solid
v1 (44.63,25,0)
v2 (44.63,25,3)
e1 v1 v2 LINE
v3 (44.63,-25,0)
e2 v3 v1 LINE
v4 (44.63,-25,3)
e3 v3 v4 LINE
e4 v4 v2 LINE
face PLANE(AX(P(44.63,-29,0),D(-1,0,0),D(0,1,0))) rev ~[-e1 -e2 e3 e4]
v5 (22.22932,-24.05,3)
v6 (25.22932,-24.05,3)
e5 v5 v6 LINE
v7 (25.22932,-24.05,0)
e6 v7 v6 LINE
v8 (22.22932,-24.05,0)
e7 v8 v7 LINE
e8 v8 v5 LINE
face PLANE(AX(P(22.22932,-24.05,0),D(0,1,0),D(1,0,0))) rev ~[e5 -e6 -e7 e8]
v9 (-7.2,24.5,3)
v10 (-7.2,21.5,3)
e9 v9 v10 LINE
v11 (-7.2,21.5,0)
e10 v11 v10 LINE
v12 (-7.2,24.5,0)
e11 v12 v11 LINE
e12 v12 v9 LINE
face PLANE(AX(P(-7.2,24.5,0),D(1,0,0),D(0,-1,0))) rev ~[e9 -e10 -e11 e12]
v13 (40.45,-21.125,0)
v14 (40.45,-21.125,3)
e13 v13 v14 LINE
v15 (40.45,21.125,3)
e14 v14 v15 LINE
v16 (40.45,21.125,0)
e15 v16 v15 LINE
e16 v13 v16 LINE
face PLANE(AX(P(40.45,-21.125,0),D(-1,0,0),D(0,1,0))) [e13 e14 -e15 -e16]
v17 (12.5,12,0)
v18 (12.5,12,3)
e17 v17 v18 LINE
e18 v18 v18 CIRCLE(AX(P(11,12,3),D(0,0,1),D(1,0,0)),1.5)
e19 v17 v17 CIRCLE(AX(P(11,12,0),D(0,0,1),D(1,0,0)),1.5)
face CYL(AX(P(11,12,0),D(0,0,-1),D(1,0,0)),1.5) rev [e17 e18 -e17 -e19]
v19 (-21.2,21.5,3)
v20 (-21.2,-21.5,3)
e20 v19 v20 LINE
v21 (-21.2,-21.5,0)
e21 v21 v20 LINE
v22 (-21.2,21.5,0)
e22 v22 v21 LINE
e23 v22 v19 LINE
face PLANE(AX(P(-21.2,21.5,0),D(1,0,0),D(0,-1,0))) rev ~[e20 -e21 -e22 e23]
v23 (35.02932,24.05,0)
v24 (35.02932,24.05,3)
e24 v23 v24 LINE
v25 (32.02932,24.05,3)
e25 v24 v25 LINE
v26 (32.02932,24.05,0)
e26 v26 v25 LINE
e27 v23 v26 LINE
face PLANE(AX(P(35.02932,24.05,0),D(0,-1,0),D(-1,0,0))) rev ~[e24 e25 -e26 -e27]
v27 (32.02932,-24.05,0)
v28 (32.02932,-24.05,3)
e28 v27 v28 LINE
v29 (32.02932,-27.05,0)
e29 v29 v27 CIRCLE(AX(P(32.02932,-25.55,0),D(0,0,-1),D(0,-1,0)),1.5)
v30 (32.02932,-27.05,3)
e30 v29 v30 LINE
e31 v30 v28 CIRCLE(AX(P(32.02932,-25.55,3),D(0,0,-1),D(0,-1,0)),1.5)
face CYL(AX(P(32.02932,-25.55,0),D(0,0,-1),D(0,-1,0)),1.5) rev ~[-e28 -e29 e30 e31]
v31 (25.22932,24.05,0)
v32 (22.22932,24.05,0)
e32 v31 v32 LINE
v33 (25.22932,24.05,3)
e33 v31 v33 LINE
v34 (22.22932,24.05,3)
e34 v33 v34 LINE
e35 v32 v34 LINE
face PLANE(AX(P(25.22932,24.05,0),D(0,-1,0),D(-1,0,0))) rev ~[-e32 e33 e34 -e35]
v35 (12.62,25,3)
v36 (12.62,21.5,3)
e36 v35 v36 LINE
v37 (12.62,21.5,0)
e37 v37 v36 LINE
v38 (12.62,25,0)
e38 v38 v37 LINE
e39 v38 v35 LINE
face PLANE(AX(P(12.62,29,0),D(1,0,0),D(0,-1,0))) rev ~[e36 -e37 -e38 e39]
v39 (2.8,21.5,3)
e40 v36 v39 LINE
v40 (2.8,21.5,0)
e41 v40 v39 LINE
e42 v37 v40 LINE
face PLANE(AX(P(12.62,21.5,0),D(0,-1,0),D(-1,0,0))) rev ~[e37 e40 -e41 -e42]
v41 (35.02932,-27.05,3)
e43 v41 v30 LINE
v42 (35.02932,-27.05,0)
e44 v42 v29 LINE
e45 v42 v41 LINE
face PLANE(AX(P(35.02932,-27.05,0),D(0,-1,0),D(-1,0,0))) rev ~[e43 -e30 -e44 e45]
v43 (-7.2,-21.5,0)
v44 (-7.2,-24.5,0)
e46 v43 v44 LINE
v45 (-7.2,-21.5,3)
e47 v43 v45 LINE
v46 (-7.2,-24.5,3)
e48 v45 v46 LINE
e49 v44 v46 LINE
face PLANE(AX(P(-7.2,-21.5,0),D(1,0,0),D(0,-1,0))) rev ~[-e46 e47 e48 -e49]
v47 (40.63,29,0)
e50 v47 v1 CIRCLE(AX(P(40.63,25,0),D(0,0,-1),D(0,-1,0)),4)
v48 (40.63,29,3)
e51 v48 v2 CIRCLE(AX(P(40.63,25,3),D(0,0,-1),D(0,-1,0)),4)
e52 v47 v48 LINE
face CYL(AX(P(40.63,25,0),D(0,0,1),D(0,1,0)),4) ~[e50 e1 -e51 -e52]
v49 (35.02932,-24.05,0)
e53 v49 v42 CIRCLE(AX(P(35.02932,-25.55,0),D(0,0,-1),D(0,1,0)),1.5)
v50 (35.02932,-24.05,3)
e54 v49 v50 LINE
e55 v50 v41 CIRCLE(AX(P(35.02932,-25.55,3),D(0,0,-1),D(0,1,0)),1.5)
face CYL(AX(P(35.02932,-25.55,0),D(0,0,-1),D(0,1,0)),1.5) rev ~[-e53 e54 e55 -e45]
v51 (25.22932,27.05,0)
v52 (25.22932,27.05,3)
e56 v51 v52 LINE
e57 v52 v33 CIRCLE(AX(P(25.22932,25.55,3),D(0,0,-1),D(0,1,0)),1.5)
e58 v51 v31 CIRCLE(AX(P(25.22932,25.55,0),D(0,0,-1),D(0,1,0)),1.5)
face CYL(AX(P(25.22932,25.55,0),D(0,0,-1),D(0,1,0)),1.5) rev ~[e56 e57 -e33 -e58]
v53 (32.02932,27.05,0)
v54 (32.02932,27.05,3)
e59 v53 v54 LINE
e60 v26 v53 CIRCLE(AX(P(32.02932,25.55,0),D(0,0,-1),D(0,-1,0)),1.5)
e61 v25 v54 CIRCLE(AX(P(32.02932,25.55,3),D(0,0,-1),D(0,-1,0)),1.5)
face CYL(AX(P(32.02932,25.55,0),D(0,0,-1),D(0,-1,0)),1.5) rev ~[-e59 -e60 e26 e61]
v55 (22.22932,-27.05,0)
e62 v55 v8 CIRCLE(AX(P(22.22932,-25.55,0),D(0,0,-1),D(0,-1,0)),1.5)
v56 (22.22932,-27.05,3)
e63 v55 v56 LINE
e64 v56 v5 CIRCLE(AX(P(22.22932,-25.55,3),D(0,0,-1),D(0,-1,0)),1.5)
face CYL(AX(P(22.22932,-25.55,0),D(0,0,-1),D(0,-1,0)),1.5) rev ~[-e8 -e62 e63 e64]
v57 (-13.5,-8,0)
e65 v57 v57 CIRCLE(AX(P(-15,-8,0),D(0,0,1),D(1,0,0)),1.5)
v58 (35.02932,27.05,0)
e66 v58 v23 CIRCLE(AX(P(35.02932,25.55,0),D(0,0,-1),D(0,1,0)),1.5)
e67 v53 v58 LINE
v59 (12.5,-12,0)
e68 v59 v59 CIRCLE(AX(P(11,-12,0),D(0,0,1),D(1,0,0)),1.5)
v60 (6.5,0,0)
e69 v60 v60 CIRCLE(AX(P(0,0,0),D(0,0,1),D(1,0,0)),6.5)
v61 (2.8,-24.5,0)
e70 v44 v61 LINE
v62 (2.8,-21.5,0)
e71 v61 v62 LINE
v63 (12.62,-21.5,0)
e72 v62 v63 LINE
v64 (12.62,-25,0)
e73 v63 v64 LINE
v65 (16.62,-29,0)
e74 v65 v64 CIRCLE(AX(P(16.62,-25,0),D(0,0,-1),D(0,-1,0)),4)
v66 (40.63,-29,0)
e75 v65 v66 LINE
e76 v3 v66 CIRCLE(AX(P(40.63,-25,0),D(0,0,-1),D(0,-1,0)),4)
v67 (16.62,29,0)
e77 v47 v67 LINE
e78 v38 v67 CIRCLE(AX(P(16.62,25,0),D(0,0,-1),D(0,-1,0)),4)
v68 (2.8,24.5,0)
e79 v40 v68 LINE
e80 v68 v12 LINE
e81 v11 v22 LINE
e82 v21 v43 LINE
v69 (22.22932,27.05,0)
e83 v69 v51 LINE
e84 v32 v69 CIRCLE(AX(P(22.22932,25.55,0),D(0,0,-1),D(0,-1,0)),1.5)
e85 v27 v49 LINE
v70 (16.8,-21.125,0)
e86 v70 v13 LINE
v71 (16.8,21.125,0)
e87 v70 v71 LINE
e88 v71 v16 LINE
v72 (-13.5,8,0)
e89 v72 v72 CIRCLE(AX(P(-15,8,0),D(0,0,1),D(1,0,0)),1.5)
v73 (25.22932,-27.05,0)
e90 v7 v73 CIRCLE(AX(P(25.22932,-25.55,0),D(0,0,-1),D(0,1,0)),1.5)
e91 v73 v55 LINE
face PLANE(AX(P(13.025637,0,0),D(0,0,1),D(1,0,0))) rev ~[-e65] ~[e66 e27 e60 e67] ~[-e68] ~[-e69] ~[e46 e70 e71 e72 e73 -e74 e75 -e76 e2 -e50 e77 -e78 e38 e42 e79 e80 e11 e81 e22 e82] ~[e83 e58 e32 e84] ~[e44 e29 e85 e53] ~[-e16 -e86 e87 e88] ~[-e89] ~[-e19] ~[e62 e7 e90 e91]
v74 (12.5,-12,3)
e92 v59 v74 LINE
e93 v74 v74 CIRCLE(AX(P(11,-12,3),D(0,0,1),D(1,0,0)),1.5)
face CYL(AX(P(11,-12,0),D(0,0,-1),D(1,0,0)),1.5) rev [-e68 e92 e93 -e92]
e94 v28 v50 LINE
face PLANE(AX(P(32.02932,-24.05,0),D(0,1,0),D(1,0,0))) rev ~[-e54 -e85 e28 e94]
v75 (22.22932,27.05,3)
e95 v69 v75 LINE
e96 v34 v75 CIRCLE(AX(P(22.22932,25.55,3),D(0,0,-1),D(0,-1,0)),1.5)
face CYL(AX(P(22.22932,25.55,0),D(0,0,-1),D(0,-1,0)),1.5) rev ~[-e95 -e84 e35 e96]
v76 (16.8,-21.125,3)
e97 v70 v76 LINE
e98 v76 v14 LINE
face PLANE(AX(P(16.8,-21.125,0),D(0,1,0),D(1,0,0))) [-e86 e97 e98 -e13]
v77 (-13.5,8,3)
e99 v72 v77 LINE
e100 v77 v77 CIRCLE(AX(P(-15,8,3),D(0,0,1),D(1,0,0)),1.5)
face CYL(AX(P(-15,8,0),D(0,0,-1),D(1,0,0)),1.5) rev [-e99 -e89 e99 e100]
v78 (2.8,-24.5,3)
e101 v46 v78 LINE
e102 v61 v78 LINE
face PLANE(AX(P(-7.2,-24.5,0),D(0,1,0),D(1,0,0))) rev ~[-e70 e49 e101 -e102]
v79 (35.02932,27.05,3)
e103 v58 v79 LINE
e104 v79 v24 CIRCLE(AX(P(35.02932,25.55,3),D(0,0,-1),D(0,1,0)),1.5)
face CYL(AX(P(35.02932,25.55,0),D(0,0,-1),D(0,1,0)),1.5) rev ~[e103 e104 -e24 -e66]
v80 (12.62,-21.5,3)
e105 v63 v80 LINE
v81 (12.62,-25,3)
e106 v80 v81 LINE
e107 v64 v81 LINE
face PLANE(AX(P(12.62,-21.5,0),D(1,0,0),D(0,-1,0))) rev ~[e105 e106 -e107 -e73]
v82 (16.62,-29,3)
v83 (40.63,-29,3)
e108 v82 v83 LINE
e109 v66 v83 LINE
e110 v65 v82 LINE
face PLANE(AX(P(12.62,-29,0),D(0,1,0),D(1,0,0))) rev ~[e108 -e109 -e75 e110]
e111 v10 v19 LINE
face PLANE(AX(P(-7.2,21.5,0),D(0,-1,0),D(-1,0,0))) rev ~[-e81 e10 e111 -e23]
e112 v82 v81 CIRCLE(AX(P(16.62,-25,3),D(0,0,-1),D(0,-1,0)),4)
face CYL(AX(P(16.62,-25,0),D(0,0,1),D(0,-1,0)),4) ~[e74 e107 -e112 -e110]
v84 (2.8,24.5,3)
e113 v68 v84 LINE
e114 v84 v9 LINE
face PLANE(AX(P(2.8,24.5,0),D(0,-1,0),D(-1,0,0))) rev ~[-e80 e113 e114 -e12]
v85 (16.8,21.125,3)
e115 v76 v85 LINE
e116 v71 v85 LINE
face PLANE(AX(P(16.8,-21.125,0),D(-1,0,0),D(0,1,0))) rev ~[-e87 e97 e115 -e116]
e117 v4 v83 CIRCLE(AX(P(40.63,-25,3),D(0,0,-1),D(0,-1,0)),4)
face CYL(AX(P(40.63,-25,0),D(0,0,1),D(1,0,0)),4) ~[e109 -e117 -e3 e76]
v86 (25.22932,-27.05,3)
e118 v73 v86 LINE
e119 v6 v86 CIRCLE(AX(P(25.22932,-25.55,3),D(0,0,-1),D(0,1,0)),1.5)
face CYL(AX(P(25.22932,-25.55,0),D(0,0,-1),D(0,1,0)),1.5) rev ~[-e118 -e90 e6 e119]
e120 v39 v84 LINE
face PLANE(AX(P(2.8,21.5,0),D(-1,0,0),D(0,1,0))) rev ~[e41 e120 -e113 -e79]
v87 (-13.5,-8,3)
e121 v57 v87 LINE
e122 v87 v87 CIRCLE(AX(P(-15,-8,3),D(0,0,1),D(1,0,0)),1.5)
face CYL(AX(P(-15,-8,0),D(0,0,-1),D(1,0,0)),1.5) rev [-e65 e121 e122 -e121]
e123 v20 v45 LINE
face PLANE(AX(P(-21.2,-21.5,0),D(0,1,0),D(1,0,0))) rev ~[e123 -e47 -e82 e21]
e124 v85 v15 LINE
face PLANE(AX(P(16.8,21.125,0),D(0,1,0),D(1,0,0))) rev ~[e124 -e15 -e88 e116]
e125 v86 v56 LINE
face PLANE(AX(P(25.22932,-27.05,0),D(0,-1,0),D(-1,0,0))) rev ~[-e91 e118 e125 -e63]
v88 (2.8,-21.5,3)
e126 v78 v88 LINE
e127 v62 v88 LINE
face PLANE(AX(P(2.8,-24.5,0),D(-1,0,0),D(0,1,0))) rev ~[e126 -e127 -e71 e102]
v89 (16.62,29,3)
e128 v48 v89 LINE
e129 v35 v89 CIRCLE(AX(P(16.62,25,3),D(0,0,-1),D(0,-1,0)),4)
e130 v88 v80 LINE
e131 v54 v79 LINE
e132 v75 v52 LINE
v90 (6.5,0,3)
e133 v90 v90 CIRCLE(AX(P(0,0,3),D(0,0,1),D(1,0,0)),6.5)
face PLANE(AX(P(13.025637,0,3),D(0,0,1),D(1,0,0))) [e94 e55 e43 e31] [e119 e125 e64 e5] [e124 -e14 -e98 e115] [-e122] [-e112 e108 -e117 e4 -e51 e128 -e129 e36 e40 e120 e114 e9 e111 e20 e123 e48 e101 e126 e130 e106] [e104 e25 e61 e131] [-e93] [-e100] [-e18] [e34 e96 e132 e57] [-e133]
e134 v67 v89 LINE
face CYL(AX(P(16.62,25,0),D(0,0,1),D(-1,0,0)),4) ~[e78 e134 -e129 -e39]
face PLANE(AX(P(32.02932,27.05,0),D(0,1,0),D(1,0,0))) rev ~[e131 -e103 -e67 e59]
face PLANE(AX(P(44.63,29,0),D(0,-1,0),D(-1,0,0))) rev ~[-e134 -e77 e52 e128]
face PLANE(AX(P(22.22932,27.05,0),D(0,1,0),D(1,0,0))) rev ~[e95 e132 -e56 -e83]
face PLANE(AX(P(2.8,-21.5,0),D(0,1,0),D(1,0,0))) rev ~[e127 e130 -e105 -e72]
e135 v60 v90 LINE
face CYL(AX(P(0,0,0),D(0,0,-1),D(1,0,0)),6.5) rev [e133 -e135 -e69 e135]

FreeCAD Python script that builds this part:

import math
import FreeCAD as App
import Part
import Sketcher
Q = App.Units.Quantity


def edges_at(feature, points):
    """Names of the edges that pass closest to the given points."""
    edges = feature.Shape.Edges
    near = lambda p: min(range(len(edges)), key=lambda i: edges[i].distToShape(Part.Vertex(*p))[0])
    return sorted({f"Edge{near(p) + 1}" for p in points})

doc = App.newDocument("Part")
body = doc.addObject("PartDesign::Body", "Body")

# Sketch on XY plane
sketch1 = body.newObject("Sketcher::SketchObject", "Sketch")
sketch1.AttachmentSupport = (doc.getObject("XY_Plane"), [""])
sketch1.MapMode = "FlatFace"
sketch1.addGeometry([
    Part.LineSegment(App.Vector(12.6, 29, 0), App.Vector(12.6, 21.5, 0)),  # 0
    Part.LineSegment(App.Vector(12.6, 21.5, 0), App.Vector(2.8, 21.5, 0)),  # 1
    Part.LineSegment(App.Vector(2.8, 21.5, 0), App.Vector(2.8, 24.5, 0)),  # 2
    Part.LineSegment(App.Vector(2.8, 24.5, 0), App.Vector(-7.2, 24.5, 0)),  # 3
    Part.LineSegment(App.Vector(-7.2, 24.5, 0), App.Vector(-7.2, 21.5, 0)),  # 4
    Part.LineSegment(App.Vector(-7.2, 21.5, 0), App.Vector(-21.2, 21.5, 0)),  # 5
    Part.LineSegment(App.Vector(-21.2, 21.5, 0), App.Vector(-21.2, -21.5, 0)),  # 6
    Part.LineSegment(App.Vector(-21.2, -21.5, 0), App.Vector(-7.2, -21.5, 0)),  # 7
    Part.LineSegment(App.Vector(-7.2, -21.5, 0), App.Vector(-7.2, -24.5, 0)),  # 8
    Part.LineSegment(App.Vector(-7.2, -24.5, 0), App.Vector(2.8, -24.5, 0)),  # 9
    Part.LineSegment(App.Vector(2.8, -24.5, 0), App.Vector(2.8, -21.5, 0)),  # 10
    Part.LineSegment(App.Vector(2.8, -21.5, 0), App.Vector(12.6, -21.5, 0)),  # 11
    Part.LineSegment(App.Vector(12.6, -21.5, 0), App.Vector(12.6, -29, 0)),  # 12
    Part.LineSegment(App.Vector(12.6, -29, 0), App.Vector(44.6, -29, 0)),  # 13
    Part.LineSegment(App.Vector(44.6, -29, 0), App.Vector(44.6, 29, 0)),  # 14
    Part.LineSegment(App.Vector(44.6, 29, 0), App.Vector(12.6, 29, 0)),  # 15
    Part.Circle(App.Vector(-15, -8, 0), App.Vector(0, 0, 1), 1.5),  # 16
    Part.Circle(App.Vector(11, -12, 0), App.Vector(0, 0, 1), 1.5),  # 17
    Part.Circle(App.Vector(0, 0, 0), App.Vector(0, 0, 1), 6.5),  # 18
    Part.ArcOfCircle(Part.Circle(App.Vector(22.2, -25.6, 0), App.Vector(0, 0, 1), 1.5), math.radians(90), math.radians(270)),  # 19
    Part.LineSegment(App.Vector(22.2, -24.1, 0), App.Vector(25.2, -24.1, 0)),  # 20
    Part.ArcOfCircle(Part.Circle(App.Vector(25.2, -25.6, 0), App.Vector(0, 0, 1), 1.5), math.radians(-90), math.radians(90)),  # 21
    Part.LineSegment(App.Vector(25.2, -27.1, 0), App.Vector(22.2, -27.1, 0)),  # 22
    Part.ArcOfCircle(Part.Circle(App.Vector(32, -25.6, 0), App.Vector(0, 0, 1), 1.5), math.radians(90), math.radians(270)),  # 23
    Part.LineSegment(App.Vector(32, -24.1, 0), App.Vector(35, -24.1, 0)),  # 24
    Part.ArcOfCircle(Part.Circle(App.Vector(35, -25.6, 0), App.Vector(0, 0, 1), 1.5), math.radians(-90), math.radians(90)),  # 25
    Part.LineSegment(App.Vector(35, -27.1, 0), App.Vector(32, -27.1, 0)),  # 26
    Part.LineSegment(App.Vector(40.5, -21.1, 0), App.Vector(16.8, -21.1, 0)),  # 27
    Part.LineSegment(App.Vector(16.8, -21.1, 0), App.Vector(16.8, 21.1, 0)),  # 28
    Part.LineSegment(App.Vector(16.8, 21.1, 0), App.Vector(40.5, 21.1, 0)),  # 29
    Part.LineSegment(App.Vector(40.5, 21.1, 0), App.Vector(40.5, -21.1, 0)),  # 30
    Part.Circle(App.Vector(-15, 8, 0), App.Vector(0, 0, 1), 1.5),  # 31
    Part.Circle(App.Vector(11, 12, 0), App.Vector(0, 0, 1), 1.5),  # 32
    Part.ArcOfCircle(Part.Circle(App.Vector(22.2, 25.6, 0), App.Vector(0, 0, 1), 1.5), math.radians(90), math.radians(270)),  # 33
    Part.LineSegment(App.Vector(22.2, 27.1, 0), App.Vector(25.2, 27.1, 0)),  # 34
    Part.ArcOfCircle(Part.Circle(App.Vector(25.2, 25.6, 0), App.Vector(0, 0, 1), 1.5), math.radians(-90), math.radians(90)),  # 35
    Part.LineSegment(App.Vector(25.2, 24.1, 0), App.Vector(22.2, 24.1, 0)),  # 36
    Part.ArcOfCircle(Part.Circle(App.Vector(32, 25.6, 0), App.Vector(0, 0, 1), 1.5), math.radians(90), math.radians(270)),  # 37
    Part.LineSegment(App.Vector(32, 27.1, 0), App.Vector(35, 27.1, 0)),  # 38
    Part.ArcOfCircle(Part.Circle(App.Vector(35, 25.6, 0), App.Vector(0, 0, 1), 1.5), math.radians(-90), math.radians(90)),  # 39
    Part.LineSegment(App.Vector(35, 24.1, 0), App.Vector(32, 24.1, 0)),  # 40
], False)
sketch1.addConstraint([
    Sketcher.Constraint("Coincident", 0, 2, 1, 1),
    Sketcher.Constraint("Coincident", 1, 2, 2, 1),
    Sketcher.Constraint("Coincident", 2, 2, 3, 1),
    Sketcher.Constraint("Coincident", 3, 2, 4, 1),
    Sketcher.Constraint("Coincident", 4, 2, 5, 1),
    Sketcher.Constraint("Coincident", 5, 2, 6, 1),
    Sketcher.Constraint("Coincident", 6, 2, 7, 1),
    Sketcher.Constraint("Coincident", 7, 2, 8, 1),
    Sketcher.Constraint("Coincident", 8, 2, 9, 1),
    Sketcher.Constraint("Coincident", 9, 2, 10, 1),
    Sketcher.Constraint("Coincident", 10, 2, 11, 1),
    Sketcher.Constraint("Coincident", 11, 2, 12, 1),
    Sketcher.Constraint("Coincident", 12, 2, 13, 1),
    Sketcher.Constraint("Coincident", 13, 2, 14, 1),
    Sketcher.Constraint("Coincident", 14, 2, 15, 1),
    Sketcher.Constraint("Coincident", 15, 2, 0, 1),
    Sketcher.Constraint("Tangent", 19, 1, 20, 1),
    Sketcher.Constraint("Tangent", 20, 2, 21, 2),
    Sketcher.Constraint("Tangent", 21, 1, 22, 1),
    Sketcher.Constraint("Tangent", 22, 2, 19, 2),
    Sketcher.Constraint("Tangent", 23, 1, 24, 1),
    Sketcher.Constraint("Tangent", 24, 2, 25, 2),
    Sketcher.Constraint("Tangent", 25, 1, 26, 1),
    Sketcher.Constraint("Tangent", 26, 2, 23, 2),
    Sketcher.Constraint("Coincident", 27, 2, 28, 1),
    Sketcher.Constraint("Coincident", 28, 2, 29, 1),
    Sketcher.Constraint("Coincident", 29, 2, 30, 1),
    Sketcher.Constraint("Coincident", 30, 2, 27, 1),
    Sketcher.Constraint("Tangent", 33, 1, 34, 1),
    Sketcher.Constraint("Tangent", 34, 2, 35, 2),
    Sketcher.Constraint("Tangent", 35, 1, 36, 1),
    Sketcher.Constraint("Tangent", 36, 2, 33, 2),
    Sketcher.Constraint("Tangent", 37, 1, 38, 1),
    Sketcher.Constraint("Tangent", 38, 2, 39, 2),
    Sketcher.Constraint("Tangent", 39, 1, 40, 1),
    Sketcher.Constraint("Tangent", 40, 2, 37, 2),
    Sketcher.Constraint("Vertical", 0),
    Sketcher.Constraint("Horizontal", 1),
    Sketcher.Constraint("Vertical", 2),
    Sketcher.Constraint("Horizontal", 3),
    Sketcher.Constraint("Vertical", 4),
    Sketcher.Constraint("Horizontal", 5),
    Sketcher.Constraint("Vertical", 6),
    Sketcher.Constraint("Horizontal", 7),
    Sketcher.Constraint("Vertical", 8),
    Sketcher.Constraint("Horizontal", 9),
    Sketcher.Constraint("Vertical", 10),
    Sketcher.Constraint("Horizontal", 11),
    Sketcher.Constraint("Vertical", 12),
    Sketcher.Constraint("Horizontal", 13),
    Sketcher.Constraint("Vertical", 14),
    Sketcher.Constraint("Horizontal", 15),
    Sketcher.Constraint("Horizontal", 20),
    Sketcher.Constraint("Horizontal", 22),
    Sketcher.Constraint("Horizontal", 24),
    Sketcher.Constraint("Horizontal", 26),
    Sketcher.Constraint("Horizontal", 27),
    Sketcher.Constraint("Vertical", 28),
    Sketcher.Constraint("Horizontal", 29),
    Sketcher.Constraint("Vertical", 30),
    Sketcher.Constraint("Horizontal", 34),
    Sketcher.Constraint("Horizontal", 36),
    Sketcher.Constraint("Horizontal", 38),
    Sketcher.Constraint("Horizontal", 40),
    Sketcher.Constraint("Coincident", 18, 3, -1, 1),
    Sketcher.Constraint("Equal", 16, 17),
    Sketcher.Constraint("Equal", 17, 19),
    Sketcher.Constraint("Equal", 21, 23),
    Sketcher.Constraint("Equal", 25, 31),
    Sketcher.Constraint("Equal", 31, 32),
    Sketcher.Constraint("Equal", 32, 33),
    Sketcher.Constraint("Equal", 35, 37),
    Sketcher.Constraint("Symmetric", 16, 3, 31, 3, -1),
    Sketcher.Constraint("Symmetric", 17, 3, 32, 3, -1),
    Sketcher.Constraint("Symmetric", 19, 3, 33, 3, -1),
    Sketcher.Constraint("Symmetric", 23, 3, 37, 3, -1),
    Sketcher.Constraint("Symmetric", 4, 2, 7, 2, -1),
    Sketcher.Constraint("Symmetric", 2, 2, 9, 2, -1),
    Sketcher.Constraint("Symmetric", 0, 2, 11, 2, -1),
    Sketcher.Constraint("Horizontal", 21, 3, 23, 3),
    Sketcher.Constraint("Horizontal", 1, 2, 4, 2),
    Sketcher.Constraint("Vertical", 21, 3, 35, 3),
    Sketcher.Constraint("Vertical", 25, 3, 39, 3),
    Sketcher.Constraint("Equal", 22, 24),
    Sketcher.Constraint("Equal", 40, 2),
    Sketcher.Constraint("Equal", 0, 12),
    Sketcher.Constraint("Diameter", 16, Q("3 mm")),
    Sketcher.Constraint("Diameter", 18, Q("13 mm")),
    Sketcher.Constraint("DistanceX", 3, 2, 3, 1, Q("10 mm")),
    Sketcher.Constraint("DistanceX", 5, 2, 5, 1, Q("14 mm")),
    Sketcher.Constraint("DistanceX", 20, 1, 20, 2, Q("3 mm")),
    Sketcher.Constraint("DistanceY", 6, 2, 6, 1, Q("43 mm")),
    Sketcher.Constraint("DistanceY", 14, 1, 14, 2, Q("58 mm")),
    Sketcher.Constraint("DistanceX", 16, 3, -1, 1, Q("15 mm")),
    Sketcher.Constraint("DistanceY", 16, 3, -1, 1, Q("8 mm")),
    Sketcher.Constraint("DistanceX", -1, 1, 17, 3, Q("11 mm")),
    Sketcher.Constraint("DistanceY", 17, 3, -1, 1, Q("12 mm")),
    Sketcher.Constraint("DistanceX", 1, 2, 1, 1, Q("9.82 mm")),
    Sketcher.Constraint("DistanceX", 13, 1, 13, 2, Q("32.01 mm")),
    Sketcher.Constraint("DistanceX", 27, 2, 27, 1, Q("23.65 mm")),
    Sketcher.Constraint("DistanceY", 28, 1, 28, 2, Q("42.25 mm")),
    Sketcher.Constraint("DistanceX", -1, 1, 1, 2, Q("2.8 mm")),
    Sketcher.Constraint("DistanceX", -1, 1, 27, 2, Q("16.8 mm")),
    Sketcher.Constraint("DistanceX", 21, 3, 23, 3, Q("6.8 mm")),
    Sketcher.Constraint("DistanceY", 19, 3, -1, 1, Q("25.55 mm")),
    Sketcher.Constraint("DistanceY", 27, 2, -1, 1, Q("21.125 mm")),
    Sketcher.Constraint("DistanceX", -1, 1, 19, 3, Q("22.22932 mm")),
])
pad1 = body.newObject("PartDesign::Pad", "Pad")
pad1.Profile = sketch1
pad1.Length = 3
doc.recompute()

fillet = body.newObject("PartDesign::Fillet", "Fillet")
fillet.Base = (pad1, edges_at(pad1, [
    (12.62, 29, 1.5),
    (44.63, 29, 1.5),
    (44.63, -29, 1.5),
    (12.62, -29, 1.5),
]))
fillet.Radius = 4

doc.recompute()
